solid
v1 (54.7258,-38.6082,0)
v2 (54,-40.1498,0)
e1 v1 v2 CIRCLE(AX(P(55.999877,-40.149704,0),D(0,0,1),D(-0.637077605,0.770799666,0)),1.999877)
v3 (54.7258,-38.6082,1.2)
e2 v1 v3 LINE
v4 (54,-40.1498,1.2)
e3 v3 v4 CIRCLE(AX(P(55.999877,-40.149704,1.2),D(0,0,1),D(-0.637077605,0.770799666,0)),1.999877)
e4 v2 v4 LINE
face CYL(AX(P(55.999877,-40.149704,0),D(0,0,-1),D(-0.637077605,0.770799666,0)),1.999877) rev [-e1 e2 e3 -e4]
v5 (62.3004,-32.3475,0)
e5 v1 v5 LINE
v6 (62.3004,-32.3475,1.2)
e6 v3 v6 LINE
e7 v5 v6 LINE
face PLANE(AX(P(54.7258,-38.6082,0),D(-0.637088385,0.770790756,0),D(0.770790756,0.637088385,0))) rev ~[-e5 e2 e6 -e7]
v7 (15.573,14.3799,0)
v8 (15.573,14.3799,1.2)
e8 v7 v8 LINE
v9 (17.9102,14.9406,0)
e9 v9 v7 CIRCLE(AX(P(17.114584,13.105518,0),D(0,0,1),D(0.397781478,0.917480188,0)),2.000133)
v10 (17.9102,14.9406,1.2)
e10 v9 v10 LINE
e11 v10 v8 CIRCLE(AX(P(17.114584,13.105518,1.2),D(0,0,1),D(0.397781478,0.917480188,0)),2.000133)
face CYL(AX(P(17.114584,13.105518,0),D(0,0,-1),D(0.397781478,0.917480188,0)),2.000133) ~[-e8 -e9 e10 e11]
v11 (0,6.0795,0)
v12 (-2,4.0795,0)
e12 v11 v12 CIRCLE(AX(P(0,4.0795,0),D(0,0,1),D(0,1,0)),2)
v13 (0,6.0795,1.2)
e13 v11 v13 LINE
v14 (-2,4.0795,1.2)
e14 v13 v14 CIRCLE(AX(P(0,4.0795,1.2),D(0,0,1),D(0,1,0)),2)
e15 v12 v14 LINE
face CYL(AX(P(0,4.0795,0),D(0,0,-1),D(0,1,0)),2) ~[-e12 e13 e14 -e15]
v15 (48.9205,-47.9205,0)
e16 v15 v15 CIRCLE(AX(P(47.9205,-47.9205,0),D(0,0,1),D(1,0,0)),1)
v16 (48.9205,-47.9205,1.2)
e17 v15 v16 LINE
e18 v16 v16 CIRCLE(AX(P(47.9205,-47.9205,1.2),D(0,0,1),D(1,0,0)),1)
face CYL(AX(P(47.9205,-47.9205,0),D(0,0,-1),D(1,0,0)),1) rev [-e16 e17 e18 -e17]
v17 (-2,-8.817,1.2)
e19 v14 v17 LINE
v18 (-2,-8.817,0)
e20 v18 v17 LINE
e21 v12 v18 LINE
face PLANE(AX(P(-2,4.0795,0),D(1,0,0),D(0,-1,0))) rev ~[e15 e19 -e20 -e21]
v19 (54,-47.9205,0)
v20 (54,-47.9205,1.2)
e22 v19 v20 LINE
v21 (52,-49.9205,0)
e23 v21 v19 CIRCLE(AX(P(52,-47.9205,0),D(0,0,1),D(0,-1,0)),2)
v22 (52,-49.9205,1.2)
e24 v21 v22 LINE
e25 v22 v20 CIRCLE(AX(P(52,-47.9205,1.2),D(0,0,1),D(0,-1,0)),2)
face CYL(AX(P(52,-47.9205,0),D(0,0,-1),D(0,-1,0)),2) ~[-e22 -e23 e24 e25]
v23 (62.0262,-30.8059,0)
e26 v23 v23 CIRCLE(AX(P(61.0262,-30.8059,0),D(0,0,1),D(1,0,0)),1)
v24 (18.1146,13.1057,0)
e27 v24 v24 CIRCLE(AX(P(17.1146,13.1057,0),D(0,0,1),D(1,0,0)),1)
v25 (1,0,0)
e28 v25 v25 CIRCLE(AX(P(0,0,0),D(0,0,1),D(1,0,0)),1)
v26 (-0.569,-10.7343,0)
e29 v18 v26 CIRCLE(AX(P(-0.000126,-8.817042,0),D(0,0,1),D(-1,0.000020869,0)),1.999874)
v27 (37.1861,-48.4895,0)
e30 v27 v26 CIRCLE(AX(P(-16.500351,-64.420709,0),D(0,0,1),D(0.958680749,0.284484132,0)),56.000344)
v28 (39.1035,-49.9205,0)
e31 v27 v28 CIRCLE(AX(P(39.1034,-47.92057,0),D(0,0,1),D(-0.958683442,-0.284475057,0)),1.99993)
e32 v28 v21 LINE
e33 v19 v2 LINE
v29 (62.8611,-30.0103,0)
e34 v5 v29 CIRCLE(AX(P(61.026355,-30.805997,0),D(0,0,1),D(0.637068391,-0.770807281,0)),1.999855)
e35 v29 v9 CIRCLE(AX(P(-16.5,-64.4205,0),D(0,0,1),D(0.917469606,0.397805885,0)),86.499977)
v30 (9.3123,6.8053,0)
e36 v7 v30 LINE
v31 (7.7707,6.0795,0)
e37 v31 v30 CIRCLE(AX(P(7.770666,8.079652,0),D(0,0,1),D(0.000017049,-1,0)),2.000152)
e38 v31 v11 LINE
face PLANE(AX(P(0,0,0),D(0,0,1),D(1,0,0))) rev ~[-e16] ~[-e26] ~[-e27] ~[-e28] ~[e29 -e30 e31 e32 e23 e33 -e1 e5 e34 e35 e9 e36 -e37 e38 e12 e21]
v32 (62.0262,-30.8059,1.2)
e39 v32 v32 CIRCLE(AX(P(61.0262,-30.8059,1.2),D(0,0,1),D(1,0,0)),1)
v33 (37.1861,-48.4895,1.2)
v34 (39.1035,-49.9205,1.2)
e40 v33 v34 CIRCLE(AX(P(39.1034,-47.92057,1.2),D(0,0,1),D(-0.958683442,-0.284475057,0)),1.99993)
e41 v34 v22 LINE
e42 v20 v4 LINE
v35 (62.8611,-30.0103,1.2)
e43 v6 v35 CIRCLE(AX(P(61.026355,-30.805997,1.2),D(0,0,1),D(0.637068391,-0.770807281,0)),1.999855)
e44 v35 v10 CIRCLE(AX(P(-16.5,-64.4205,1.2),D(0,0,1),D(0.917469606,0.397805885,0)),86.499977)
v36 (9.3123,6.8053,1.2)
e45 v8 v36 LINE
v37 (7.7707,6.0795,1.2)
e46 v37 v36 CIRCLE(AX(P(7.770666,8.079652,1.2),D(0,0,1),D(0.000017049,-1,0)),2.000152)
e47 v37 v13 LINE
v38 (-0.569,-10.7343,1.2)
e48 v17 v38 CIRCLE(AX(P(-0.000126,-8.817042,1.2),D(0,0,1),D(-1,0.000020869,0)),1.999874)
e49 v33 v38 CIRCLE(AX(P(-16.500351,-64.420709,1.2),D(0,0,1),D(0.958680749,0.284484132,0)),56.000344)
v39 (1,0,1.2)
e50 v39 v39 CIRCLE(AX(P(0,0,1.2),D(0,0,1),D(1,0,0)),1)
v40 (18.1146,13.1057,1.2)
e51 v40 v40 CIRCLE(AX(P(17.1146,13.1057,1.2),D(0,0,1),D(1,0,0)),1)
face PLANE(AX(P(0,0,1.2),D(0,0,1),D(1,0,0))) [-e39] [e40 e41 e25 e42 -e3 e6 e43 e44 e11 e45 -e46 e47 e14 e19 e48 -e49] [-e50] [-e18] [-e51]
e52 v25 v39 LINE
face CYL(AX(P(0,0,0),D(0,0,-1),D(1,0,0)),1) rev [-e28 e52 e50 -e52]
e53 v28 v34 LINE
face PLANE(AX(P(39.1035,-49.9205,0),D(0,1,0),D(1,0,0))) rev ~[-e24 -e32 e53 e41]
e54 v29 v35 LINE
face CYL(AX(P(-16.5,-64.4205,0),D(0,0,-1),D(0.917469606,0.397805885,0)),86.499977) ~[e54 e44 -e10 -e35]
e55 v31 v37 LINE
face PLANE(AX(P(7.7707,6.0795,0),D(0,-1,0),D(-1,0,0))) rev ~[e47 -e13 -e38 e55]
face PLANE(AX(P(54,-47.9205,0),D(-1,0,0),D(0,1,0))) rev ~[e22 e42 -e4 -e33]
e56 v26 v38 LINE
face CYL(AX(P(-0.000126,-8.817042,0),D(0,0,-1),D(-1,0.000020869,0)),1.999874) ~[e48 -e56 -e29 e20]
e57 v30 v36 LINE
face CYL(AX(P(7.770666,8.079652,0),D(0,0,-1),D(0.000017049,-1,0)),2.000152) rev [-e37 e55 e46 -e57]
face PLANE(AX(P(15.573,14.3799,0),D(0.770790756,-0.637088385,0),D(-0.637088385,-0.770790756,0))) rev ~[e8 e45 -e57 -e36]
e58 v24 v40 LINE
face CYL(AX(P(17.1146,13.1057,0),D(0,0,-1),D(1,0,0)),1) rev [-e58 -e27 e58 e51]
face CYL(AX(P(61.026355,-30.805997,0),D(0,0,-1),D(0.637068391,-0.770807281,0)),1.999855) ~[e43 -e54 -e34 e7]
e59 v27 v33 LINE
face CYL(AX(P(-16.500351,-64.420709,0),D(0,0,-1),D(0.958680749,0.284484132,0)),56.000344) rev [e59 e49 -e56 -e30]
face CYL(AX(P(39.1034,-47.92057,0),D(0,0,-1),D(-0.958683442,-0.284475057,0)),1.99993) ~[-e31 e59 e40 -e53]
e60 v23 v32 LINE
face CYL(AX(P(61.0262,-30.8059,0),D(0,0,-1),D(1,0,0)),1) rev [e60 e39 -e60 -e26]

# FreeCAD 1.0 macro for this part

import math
import FreeCAD as App
import Part
import Sketcher

V = App.Vector

doc = App.newDocument("Part")
body = doc.addObject("PartDesign::Body", "Body")

sketch1 = body.newObject("Sketcher::SketchObject", "Sketch")
sketch1.AttachmentSupport = (doc.getObject("XY_Plane"), [""])
sketch1.MapMode = "FlatFace"
sketch1.addGeometry([
    Part.ArcOfCircle(Part.Circle(V(52, -47.9205, 0), V(0, 0, 1), 2), math.radians(-90), math.radians(0)),
    Part.LineSegment(V(54, -47.9205, 0), V(54, -40.1498, 0)),
    Part.ArcOfCircle(Part.Circle(V(56, -40.1498, 0), V(0, 0, 1), 2.000029), math.radians(129.575224), math.radians(180)),
    Part.LineSegment(V(54.7258, -38.6082, 0), V(62.3004, -32.3475, 0)),
    Part.ArcOfCircle(Part.Circle(V(61.0262, -30.8059, 0), V(0, 0, 1), 2.000029), math.radians(-50.424776), math.radians(23.441223)),
    Part.ArcOfCircle(Part.Circle(V(-16.5, -64.4205, 0), V(0, 0, 1), 86.499977), math.radians(23.441085), math.radians(66.558915)),
    Part.ArcOfCircle(Part.Circle(V(17.1146, 13.1057, 0), V(0, 0, 1), 1.999959), math.radians(66.558777), math.radians(140.424776)),
    Part.LineSegment(V(15.573, 14.3799, 0), V(9.3123, 6.8053, 0)),
    Part.ArcOfCircle(Part.Circle(V(7.7707, 8.0795, 0), V(0, 0, 1), 2), math.radians(-90), math.radians(-39.575224)),
    Part.LineSegment(V(7.7707, 6.0795, 0), V(0, 6.0795, 0)),
    Part.ArcOfCircle(Part.Circle(V(0, 4.0795, 0), V(0, 0, 1), 2), math.radians(90), math.radians(180)),
    Part.LineSegment(V(-2, 4.0795, 0), V(-2, -8.817, 0)),
    Part.ArcOfCircle(Part.Circle(V(0, -8.817, 0), V(0, 0, 1), 2), math.radians(180), math.radians(253.470612)),
    Part.ArcOfCircle(Part.Circle(V(-16.5, -64.4205, 0), V(0, 0, 1), 55.999947), math.radians(16.527912), math.radians(73.472117)),
    Part.ArcOfCircle(Part.Circle(V(39.1035, -47.9205, 0), V(0, 0, 1), 2.000046), math.radians(-163.471427), math.radians(-90)),
    Part.LineSegment(V(39.1035, -49.9205, 0), V(52, -49.9205, 0)),
    Part.Circle(V(47.9205, -47.9205, 0), V(0, 0, 1), 1),
    Part.Circle(V(61.0262, -30.8059, 0), V(0, 0, 1), 1),
    Part.Circle(V(0, 0, 0), V(0, 0, 1), 1),
    Part.Circle(V(17.1146, 13.1057, 0), V(0, 0, 1), 1),
], False)
sketch1.addConstraint([
    Sketcher.Constraint("Tangent", 0, 2, 1, 1),
    Sketcher.Constraint("Tangent", 1, 2, 2, 2),
    Sketcher.Constraint("Tangent", 2, 1, 3, 1),
    Sketcher.Constraint("Tangent", 3, 2, 4, 1),
    Sketcher.Constraint("Tangent", 4, 2, 5, 1),
    Sketcher.Constraint("Tangent", 5, 2, 6, 1),
    Sketcher.Constraint("Tangent", 6, 2, 7, 1),
    Sketcher.Constraint("Tangent", 7, 2, 8, 2),
    Sketcher.Constraint("Tangent", 8, 1, 9, 1),
    Sketcher.Constraint("Tangent", 9, 2, 10, 1),
    Sketcher.Constraint("Tangent", 10, 2, 11, 1),
    Sketcher.Constraint("Tangent", 11, 2, 12, 1),
    Sketcher.Constraint("Tangent", 12, 2, 13, 2),
    Sketcher.Constraint("Tangent", 13, 1, 14, 1),
    Sketcher.Constraint("Tangent", 14, 2, 15, 1),
    Sketcher.Constraint("Tangent", 15, 2, 0, 1),
    Sketcher.Constraint("Vertical", 1),
    Sketcher.Constraint("Horizontal", 9),
    Sketcher.Constraint("Vertical", 11),
    Sketcher.Constraint("Horizontal", 15),
    Sketcher.Constraint("Coincident", 18, 3, -1, 1),
    Sketcher.Constraint("Coincident", 13, 3, 5, 3),
    Sketcher.Constraint("Coincident", 17, 3, 4, 3),
    Sketcher.Constraint("Coincident", 19, 3, 6, 3),
    Sketcher.Constraint("Equal", 0, 2),
    Sketcher.Constraint("Equal", 2, 4),
    Sketcher.Constraint("Equal", 4, 6),
    Sketcher.Constraint("Equal", 6, 8),
    Sketcher.Constraint("Equal", 8, 10),
    Sketcher.Constraint("Equal", 10, 12),
    Sketcher.Constraint("Equal", 12, 14),
    Sketcher.Constraint("Equal", 16, 17),
    Sketcher.Constraint("Equal", 17, 18),
    Sketcher.Constraint("Equal", 18, 19),
    Sketcher.Constraint("PointOnObject", 10, 3, -2),
    Sketcher.Constraint("Horizontal", 14, 3, 16, 3),
    Sketcher.Constraint("Equal", 9, 1),
    Sketcher.Constraint("Equal", 15, 11),
    Sketcher.Constraint("Equal", 3, 7),
    Sketcher.Constraint("Diameter", 16, 2.0),
    Sketcher.Constraint("Radius", 0, 2.0),
    Sketcher.Constraint("Radius", 13, 56.0),
    Sketcher.Constraint("Radius", 5, 86.5),
    Sketcher.Constraint("DistanceX", -1, 1, 0, 3, 52.0),
    Sketcher.Constraint("DistanceY", 0, 3, 8, 3, 56.0),
    Sketcher.Constraint("DistanceX", 5, 3, -1, 1, 16.5),
    Sketcher.Constraint("Distance", 3, 9.827),
    Sketcher.Constraint("DistanceX", 9, 2, 9, 1, 7.7707),
    Sketcher.Constraint("DistanceY", 4, 3, -1, 1, 30.806),
    Sketcher.Constraint("DistanceX", 14, 3, 16, 3, 8.817),
])
pad1 = body.newObject("PartDesign::Pad", "Pad")
pad1.Profile = sketch1
pad1.Length = 1.2

doc.recompute()
